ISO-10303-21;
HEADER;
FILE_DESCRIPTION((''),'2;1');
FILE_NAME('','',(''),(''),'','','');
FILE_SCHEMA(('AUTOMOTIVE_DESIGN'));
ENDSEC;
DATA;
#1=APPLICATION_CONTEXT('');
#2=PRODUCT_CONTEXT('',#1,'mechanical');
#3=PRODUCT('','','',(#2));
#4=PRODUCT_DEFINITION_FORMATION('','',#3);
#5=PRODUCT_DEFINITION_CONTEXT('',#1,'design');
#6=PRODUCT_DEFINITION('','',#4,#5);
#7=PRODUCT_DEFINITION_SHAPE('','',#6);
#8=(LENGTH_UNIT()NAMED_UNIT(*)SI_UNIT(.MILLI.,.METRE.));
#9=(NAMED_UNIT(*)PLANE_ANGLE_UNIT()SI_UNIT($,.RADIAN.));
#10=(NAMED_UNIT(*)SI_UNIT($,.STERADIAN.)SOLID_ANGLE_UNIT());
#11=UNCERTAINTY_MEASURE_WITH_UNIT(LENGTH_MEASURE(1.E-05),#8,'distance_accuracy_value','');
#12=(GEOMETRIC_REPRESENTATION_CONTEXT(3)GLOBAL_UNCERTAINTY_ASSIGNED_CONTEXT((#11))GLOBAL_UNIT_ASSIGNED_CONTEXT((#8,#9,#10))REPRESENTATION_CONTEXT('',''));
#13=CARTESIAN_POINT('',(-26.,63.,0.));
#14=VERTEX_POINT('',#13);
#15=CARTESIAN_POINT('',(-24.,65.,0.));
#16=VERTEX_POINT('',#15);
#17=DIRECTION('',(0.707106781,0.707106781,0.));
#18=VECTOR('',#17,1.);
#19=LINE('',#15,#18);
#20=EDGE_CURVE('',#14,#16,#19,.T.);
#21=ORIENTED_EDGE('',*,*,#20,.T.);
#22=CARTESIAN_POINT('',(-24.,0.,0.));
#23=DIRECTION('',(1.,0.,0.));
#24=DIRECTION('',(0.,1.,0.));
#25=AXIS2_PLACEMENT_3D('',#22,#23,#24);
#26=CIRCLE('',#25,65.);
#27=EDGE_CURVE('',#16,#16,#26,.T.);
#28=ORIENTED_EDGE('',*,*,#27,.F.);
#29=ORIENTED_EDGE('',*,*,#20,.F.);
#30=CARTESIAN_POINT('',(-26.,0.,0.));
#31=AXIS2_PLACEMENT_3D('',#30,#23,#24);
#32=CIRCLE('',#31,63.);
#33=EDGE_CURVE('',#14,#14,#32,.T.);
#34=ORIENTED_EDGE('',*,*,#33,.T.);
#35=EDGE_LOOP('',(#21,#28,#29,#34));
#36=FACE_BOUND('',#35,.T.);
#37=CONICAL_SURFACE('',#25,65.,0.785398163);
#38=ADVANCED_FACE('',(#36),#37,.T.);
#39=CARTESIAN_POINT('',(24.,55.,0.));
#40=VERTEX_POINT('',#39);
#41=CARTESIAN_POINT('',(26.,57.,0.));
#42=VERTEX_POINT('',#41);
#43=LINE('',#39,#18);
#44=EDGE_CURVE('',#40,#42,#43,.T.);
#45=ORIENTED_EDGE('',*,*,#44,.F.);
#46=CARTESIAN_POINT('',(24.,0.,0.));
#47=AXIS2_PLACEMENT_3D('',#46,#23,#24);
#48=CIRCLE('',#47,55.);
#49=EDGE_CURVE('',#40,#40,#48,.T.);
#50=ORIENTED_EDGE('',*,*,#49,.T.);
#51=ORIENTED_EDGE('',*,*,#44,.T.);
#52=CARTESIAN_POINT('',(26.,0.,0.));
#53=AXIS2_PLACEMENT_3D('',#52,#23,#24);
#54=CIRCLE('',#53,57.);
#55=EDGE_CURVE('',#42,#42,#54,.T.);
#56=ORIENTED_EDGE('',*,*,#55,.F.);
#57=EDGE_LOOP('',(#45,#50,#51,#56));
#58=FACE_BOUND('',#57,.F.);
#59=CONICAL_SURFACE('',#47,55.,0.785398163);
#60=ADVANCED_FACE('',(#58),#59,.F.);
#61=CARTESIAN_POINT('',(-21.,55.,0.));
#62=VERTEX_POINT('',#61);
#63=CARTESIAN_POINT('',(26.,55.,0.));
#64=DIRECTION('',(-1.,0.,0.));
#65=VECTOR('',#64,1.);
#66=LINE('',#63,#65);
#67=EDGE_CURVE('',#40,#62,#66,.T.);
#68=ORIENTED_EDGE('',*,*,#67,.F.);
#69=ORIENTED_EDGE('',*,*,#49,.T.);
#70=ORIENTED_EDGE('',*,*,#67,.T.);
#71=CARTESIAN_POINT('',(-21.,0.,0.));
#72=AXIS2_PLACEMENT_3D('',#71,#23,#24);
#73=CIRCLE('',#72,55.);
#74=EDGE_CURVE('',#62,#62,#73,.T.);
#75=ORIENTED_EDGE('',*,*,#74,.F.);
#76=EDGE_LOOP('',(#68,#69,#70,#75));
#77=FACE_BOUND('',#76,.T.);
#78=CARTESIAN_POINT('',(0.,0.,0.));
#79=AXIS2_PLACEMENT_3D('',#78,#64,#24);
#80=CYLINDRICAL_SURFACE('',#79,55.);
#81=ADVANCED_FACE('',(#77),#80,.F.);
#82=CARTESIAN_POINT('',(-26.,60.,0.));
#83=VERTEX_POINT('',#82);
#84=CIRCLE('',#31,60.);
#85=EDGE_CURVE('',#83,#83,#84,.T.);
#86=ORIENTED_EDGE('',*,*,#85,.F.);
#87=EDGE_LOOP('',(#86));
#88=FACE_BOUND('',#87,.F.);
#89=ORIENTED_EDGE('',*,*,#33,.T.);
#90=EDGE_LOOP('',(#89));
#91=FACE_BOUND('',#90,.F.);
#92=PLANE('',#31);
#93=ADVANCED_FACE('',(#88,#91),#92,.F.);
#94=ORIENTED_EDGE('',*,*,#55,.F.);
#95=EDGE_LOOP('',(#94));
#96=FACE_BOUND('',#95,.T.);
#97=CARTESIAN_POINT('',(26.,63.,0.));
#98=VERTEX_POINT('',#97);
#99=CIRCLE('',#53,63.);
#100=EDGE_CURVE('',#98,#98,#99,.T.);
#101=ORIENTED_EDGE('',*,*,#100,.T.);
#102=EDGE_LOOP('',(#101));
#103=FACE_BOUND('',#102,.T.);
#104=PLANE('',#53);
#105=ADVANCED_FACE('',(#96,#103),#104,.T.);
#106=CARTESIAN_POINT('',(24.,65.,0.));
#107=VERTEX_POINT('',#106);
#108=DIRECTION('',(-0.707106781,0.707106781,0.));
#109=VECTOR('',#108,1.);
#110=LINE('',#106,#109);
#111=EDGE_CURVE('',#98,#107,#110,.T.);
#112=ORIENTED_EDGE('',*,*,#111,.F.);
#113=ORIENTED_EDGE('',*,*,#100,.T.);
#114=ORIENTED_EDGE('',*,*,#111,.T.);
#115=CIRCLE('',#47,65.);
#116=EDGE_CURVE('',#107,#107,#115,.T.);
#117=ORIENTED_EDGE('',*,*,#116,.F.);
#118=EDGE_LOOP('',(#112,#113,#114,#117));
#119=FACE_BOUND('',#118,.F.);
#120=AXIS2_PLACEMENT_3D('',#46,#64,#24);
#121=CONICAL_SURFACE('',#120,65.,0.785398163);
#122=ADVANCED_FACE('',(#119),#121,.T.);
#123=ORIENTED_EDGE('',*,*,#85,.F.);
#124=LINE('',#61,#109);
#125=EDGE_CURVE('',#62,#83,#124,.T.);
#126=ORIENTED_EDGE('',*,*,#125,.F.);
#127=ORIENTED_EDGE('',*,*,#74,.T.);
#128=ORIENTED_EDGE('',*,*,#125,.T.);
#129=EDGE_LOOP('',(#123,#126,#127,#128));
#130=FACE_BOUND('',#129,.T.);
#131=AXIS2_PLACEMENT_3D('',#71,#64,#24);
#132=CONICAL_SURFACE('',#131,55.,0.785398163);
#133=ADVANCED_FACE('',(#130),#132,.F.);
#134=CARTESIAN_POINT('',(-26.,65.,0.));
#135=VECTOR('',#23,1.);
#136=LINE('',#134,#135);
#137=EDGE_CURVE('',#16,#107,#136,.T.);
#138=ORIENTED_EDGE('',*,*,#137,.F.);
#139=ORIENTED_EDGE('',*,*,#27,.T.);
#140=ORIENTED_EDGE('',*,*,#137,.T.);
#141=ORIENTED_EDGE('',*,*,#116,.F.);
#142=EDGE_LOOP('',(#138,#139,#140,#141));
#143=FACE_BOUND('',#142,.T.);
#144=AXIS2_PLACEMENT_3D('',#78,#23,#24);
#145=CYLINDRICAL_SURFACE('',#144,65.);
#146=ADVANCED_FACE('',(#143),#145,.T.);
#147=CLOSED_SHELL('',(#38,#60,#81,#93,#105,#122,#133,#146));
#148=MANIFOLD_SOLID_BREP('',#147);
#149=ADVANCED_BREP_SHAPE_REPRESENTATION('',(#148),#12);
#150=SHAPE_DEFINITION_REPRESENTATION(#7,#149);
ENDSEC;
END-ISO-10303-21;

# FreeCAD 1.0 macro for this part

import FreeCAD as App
import Part
import Sketcher

V = App.Vector
Q = App.Units.Quantity


def edges_at(feature, points):
    """Names of the edges that pass closest to the given points."""
    edges = feature.Shape.Edges
    near = lambda p: min(range(len(edges)), key=lambda i: edges[i].distToShape(Part.Vertex(*p))[0])
    return sorted({f"Edge{near(p) + 1}" for p in points})

doc = App.newDocument("Part")
body = doc.addObject("PartDesign::Body", "Body")

sketch1 = body.newObject("Sketcher::SketchObject", "Sketch")
sketch1.AttachmentSupport = (doc.getObject("YZ_Plane"), [""])
sketch1.MapMode = "FlatFace"
sketch1.addGeometry([
    Part.Circle(V(0, 0, 0), V(0, 0, 1), 65),
    Part.Circle(V(0, 0, 0), V(0, 0, 1), 55),
], False)
sketch1.addConstraint([
    Sketcher.Constraint("Coincident", 0, 3, -1, 1),
    Sketcher.Constraint("Coincident", 1, 3, -1, 1),
    Sketcher.Constraint("Diameter", 0, Q("130 mm")),
    Sketcher.Constraint("Diameter", 1, Q("110 mm")),
])
pad1 = body.newObject("PartDesign::Pad", "Pad")
pad1.Profile = sketch1
pad1.Length = 52
pad1.Midplane = True
doc.recompute()

chamfer = body.newObject("PartDesign::Chamfer", "Chamfer")
chamfer.Base = (pad1, edges_at(pad1, [(-26, -55, 0)]))
chamfer.Size = 5
doc.recompute()

chamfer2 = body.newObject("PartDesign::Chamfer", "Chamfer001")
chamfer2.Base = (chamfer, edges_at(chamfer, [(-26, -65, 0), (26, -65, 0), (26, -55, 0)]))
chamfer2.Size = 2

doc.recompute()
